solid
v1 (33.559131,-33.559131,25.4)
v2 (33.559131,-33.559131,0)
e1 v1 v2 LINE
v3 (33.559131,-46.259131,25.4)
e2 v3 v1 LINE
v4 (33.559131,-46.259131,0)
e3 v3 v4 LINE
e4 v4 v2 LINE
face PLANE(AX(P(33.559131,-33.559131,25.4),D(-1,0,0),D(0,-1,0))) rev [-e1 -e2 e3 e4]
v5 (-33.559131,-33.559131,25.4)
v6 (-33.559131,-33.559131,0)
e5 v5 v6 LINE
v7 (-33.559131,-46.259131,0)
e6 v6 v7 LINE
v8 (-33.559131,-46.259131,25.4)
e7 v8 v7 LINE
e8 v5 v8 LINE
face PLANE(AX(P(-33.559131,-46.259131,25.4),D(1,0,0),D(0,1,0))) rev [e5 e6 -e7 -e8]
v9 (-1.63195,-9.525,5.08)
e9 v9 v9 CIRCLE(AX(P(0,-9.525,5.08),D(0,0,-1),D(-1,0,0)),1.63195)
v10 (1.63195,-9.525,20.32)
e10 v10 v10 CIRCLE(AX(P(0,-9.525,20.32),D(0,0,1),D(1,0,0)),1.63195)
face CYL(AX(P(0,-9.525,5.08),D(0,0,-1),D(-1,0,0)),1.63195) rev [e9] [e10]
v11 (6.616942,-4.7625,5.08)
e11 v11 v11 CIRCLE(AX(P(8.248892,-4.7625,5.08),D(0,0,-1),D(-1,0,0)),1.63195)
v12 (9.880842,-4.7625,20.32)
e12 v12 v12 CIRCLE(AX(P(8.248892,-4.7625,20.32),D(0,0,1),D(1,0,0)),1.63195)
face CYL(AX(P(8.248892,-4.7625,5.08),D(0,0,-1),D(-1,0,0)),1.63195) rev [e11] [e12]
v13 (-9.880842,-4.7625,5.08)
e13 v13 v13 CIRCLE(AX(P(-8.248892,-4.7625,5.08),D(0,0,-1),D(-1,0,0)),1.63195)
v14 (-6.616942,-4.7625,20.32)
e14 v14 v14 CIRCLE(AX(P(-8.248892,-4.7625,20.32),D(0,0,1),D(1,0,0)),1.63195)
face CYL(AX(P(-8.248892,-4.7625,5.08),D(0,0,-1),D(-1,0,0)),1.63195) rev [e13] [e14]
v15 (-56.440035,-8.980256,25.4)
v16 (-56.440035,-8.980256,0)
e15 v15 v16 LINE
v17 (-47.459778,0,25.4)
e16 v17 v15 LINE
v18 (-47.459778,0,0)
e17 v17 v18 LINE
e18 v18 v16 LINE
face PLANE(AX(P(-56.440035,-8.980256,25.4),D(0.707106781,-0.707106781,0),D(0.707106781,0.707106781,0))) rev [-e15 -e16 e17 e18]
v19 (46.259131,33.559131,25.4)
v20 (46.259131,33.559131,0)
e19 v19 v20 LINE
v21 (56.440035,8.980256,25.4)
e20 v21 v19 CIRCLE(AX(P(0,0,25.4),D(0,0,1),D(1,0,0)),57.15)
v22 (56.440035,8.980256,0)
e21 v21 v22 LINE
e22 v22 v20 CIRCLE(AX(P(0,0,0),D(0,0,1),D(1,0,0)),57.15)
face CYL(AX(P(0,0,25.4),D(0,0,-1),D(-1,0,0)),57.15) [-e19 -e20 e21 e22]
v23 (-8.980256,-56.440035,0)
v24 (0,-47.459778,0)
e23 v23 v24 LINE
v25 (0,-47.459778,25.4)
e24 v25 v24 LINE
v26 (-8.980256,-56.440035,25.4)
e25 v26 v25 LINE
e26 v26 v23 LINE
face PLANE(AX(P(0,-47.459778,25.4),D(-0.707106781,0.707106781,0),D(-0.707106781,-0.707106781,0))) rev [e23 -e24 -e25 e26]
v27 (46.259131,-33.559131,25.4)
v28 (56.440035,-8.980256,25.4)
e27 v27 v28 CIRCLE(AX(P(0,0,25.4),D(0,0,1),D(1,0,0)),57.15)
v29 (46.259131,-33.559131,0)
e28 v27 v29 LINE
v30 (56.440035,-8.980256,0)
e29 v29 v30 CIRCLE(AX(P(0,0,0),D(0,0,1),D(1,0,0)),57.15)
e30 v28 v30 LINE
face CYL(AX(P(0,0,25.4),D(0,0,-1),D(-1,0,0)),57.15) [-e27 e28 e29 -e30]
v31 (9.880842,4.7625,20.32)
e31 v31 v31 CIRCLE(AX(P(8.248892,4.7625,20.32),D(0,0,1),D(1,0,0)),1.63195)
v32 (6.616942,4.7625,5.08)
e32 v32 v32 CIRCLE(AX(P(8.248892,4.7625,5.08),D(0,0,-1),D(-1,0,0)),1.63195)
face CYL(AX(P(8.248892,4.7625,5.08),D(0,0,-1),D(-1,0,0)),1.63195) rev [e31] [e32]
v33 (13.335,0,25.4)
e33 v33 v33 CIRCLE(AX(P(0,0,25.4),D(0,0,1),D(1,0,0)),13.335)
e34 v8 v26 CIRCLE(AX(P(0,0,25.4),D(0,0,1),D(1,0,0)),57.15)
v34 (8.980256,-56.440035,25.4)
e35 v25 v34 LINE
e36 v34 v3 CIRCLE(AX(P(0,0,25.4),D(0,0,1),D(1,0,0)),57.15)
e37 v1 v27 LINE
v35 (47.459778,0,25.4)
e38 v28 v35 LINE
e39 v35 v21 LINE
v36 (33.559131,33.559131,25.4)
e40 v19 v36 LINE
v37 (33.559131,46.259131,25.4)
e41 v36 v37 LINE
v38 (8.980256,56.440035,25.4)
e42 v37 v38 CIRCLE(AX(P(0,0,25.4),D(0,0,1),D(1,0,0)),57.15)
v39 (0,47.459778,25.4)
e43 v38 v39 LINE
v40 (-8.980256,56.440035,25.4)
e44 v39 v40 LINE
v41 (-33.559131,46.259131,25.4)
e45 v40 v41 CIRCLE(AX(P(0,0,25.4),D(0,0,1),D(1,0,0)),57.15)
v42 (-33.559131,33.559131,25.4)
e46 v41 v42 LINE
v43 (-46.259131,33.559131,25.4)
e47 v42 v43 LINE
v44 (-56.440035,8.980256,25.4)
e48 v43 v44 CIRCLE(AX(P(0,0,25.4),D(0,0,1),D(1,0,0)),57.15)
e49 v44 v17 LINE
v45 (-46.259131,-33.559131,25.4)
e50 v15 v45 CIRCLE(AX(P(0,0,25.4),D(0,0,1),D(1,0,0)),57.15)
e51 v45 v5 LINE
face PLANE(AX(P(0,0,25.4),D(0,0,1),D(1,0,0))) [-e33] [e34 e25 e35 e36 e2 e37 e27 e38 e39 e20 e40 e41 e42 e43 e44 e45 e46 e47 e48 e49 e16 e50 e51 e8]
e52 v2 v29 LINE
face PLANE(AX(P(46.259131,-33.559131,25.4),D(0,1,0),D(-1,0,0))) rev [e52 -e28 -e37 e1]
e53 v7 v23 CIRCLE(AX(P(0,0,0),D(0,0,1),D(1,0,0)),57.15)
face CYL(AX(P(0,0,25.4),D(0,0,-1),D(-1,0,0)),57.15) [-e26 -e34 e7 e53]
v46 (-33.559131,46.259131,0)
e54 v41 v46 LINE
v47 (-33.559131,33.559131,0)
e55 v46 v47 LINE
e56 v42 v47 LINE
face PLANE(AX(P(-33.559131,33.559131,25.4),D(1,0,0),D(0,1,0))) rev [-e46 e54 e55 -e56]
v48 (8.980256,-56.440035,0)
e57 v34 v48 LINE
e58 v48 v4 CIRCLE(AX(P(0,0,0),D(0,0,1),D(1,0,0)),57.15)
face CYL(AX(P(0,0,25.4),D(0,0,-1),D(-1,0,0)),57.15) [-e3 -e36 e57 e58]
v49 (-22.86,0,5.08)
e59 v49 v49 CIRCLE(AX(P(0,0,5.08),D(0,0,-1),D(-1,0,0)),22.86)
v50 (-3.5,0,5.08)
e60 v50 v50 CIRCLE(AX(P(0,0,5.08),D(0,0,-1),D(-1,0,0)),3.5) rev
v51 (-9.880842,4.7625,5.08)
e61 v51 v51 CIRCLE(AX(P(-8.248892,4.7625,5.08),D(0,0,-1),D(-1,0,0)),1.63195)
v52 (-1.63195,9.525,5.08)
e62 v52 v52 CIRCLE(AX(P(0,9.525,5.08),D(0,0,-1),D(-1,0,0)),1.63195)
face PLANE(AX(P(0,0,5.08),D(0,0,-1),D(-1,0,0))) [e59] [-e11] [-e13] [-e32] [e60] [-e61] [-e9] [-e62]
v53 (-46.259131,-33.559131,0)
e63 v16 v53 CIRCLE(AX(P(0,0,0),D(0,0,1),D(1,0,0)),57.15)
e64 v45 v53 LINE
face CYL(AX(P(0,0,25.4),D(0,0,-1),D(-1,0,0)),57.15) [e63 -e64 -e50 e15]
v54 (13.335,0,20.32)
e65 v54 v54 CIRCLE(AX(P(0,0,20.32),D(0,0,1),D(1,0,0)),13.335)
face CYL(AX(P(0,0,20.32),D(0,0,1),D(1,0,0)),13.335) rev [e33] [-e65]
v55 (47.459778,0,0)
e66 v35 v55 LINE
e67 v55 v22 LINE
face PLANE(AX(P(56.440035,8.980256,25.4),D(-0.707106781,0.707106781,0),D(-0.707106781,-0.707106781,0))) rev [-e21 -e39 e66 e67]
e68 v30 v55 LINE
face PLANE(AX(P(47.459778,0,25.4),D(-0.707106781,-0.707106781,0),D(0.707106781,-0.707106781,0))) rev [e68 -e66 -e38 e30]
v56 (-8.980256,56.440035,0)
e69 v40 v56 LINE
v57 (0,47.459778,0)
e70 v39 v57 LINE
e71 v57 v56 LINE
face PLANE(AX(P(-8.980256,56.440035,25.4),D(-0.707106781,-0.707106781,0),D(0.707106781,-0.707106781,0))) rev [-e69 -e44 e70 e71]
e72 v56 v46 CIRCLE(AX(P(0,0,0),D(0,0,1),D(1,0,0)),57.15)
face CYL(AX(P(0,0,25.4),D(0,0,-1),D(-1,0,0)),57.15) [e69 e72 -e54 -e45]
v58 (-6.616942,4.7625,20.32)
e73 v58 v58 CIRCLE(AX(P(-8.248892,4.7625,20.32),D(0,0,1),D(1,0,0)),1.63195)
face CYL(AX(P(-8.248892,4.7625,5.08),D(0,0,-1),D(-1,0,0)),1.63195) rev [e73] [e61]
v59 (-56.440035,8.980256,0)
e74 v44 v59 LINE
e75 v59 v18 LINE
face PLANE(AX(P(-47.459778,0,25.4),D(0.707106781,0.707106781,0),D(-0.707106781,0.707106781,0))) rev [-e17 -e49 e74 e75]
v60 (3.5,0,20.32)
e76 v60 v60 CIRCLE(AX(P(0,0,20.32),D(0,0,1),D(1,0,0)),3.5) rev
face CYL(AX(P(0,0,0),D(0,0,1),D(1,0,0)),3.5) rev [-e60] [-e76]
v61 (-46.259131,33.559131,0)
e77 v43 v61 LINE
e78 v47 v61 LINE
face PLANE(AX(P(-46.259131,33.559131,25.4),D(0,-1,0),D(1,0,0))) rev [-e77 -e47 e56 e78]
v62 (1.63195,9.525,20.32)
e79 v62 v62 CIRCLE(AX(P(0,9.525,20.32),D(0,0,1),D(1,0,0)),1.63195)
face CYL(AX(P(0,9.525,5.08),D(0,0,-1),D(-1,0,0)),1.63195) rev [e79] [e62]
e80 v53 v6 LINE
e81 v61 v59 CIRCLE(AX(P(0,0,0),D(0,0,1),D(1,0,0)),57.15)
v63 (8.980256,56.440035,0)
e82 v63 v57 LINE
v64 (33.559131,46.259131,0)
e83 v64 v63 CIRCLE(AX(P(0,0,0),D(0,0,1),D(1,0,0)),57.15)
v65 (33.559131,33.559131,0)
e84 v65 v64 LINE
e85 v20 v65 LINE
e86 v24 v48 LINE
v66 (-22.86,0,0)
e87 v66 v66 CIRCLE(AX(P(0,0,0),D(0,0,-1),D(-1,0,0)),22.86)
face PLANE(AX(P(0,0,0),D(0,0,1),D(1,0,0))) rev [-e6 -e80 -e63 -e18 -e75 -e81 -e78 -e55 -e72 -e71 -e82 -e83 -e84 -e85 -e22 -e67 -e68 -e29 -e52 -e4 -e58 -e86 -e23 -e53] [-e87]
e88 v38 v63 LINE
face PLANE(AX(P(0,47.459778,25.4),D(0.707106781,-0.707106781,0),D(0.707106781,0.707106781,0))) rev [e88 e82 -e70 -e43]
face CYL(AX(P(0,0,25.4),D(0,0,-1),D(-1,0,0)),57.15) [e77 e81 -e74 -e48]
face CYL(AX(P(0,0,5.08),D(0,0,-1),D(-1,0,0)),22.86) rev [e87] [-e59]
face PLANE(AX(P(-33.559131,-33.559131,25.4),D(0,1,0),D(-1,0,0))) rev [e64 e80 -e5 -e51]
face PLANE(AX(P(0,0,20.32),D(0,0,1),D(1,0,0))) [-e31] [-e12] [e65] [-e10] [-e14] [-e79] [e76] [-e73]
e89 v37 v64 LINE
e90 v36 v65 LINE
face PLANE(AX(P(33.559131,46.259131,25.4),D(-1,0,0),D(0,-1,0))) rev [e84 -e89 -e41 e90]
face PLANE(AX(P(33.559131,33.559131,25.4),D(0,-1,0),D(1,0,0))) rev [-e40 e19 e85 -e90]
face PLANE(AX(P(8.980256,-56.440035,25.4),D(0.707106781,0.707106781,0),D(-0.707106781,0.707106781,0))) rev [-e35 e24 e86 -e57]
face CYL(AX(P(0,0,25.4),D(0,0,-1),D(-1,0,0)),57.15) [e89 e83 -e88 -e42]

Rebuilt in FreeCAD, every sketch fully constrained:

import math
import FreeCAD as App
import Part
import Sketcher
Q = App.Units.Quantity

doc = App.newDocument("Part")
body = doc.addObject("PartDesign::Body", "Body")

sketch1 = doc.addObject("Sketcher::SketchObject", "Sketch")
body.addObject(sketch1)
sketch1.AttachmentSupport = (doc.XY_Plane, [""])
sketch1.MapMode = "FlatFace"
sketch1.addGeometry([
    Part.LineSegment(App.Vector(0, 47, 0), App.Vector(-9, 56, 0)),
    Part.ArcOfCircle(Part.Circle(App.Vector(0, 0, 0), App.Vector(0, 0, 1), 57), math.radians(99), math.radians(126)),
    Part.LineSegment(App.Vector(-34, 46, 0), App.Vector(-34, 34, 0)),
    Part.LineSegment(App.Vector(-34, 34, 0), App.Vector(-46, 34, 0)),
    Part.ArcOfCircle(Part.Circle(App.Vector(0, 0, 0), App.Vector(0, 0, 1), 57), math.radians(144), math.radians(171)),
    Part.LineSegment(App.Vector(-56, 9, 0), App.Vector(-47, 0, 0)),
    Part.LineSegment(App.Vector(-47, 0, 0), App.Vector(-56, -9, 0)),
    Part.ArcOfCircle(Part.Circle(App.Vector(0, 0, 0), App.Vector(0, 0, 1), 57), math.radians(-171), math.radians(-144)),
    Part.LineSegment(App.Vector(-46, -34, 0), App.Vector(-34, -34, 0)),
    Part.LineSegment(App.Vector(-34, -34, 0), App.Vector(-34, -46, 0)),
    Part.ArcOfCircle(Part.Circle(App.Vector(0, 0, 0), App.Vector(0, 0, 1), 57), math.radians(-126), math.radians(-99)),
    Part.LineSegment(App.Vector(-9, -56, 0), App.Vector(0, -47, 0)),
    Part.LineSegment(App.Vector(0, -47, 0), App.Vector(9, -56, 0)),
    Part.ArcOfCircle(Part.Circle(App.Vector(0, 0, 0), App.Vector(0, 0, 1), 57), math.radians(-81), math.radians(-54)),
    Part.LineSegment(App.Vector(34, -46, 0), App.Vector(34, -34, 0)),
    Part.LineSegment(App.Vector(34, -34, 0), App.Vector(46, -34, 0)),
    Part.ArcOfCircle(Part.Circle(App.Vector(0, 0, 0), App.Vector(0, 0, 1), 57), math.radians(-36), math.radians(-9)),
    Part.LineSegment(App.Vector(56, -9, 0), App.Vector(47, 0, 0)),
    Part.LineSegment(App.Vector(47, 0, 0), App.Vector(56, 9, 0)),
    Part.ArcOfCircle(Part.Circle(App.Vector(0, 0, 0), App.Vector(0, 0, 1), 57), math.radians(9), math.radians(36)),
    Part.LineSegment(App.Vector(46, 34, 0), App.Vector(34, 34, 0)),
    Part.LineSegment(App.Vector(34, 34, 0), App.Vector(34, 46, 0)),
    Part.ArcOfCircle(Part.Circle(App.Vector(0, 0, 0), App.Vector(0, 0, 1), 57), math.radians(54), math.radians(81)),
    Part.LineSegment(App.Vector(9, 56, 0), App.Vector(0, 47, 0)),
], False)
sketch1.addConstraint([
    Sketcher.Constraint("Coincident", 0, 2, 1, 1),
    Sketcher.Constraint("Coincident", 1, 2, 2, 1),
    Sketcher.Constraint("Coincident", 2, 2, 3, 1),
    Sketcher.Constraint("Coincident", 3, 2, 4, 1),
    Sketcher.Constraint("Coincident", 4, 2, 5, 1),
    Sketcher.Constraint("Coincident", 5, 2, 6, 1),
    Sketcher.Constraint("Coincident", 6, 2, 7, 1),
    Sketcher.Constraint("Coincident", 7, 2, 8, 1),
    Sketcher.Constraint("Coincident", 8, 2, 9, 1),
    Sketcher.Constraint("Coincident", 9, 2, 10, 1),
    Sketcher.Constraint("Coincident", 10, 2, 11, 1),
    Sketcher.Constraint("Coincident", 11, 2, 12, 1),
    Sketcher.Constraint("Coincident", 12, 2, 13, 1),
    Sketcher.Constraint("Coincident", 13, 2, 14, 1),
    Sketcher.Constraint("Coincident", 14, 2, 15, 1),
    Sketcher.Constraint("Coincident", 15, 2, 16, 1),
    Sketcher.Constraint("Coincident", 16, 2, 17, 1),
    Sketcher.Constraint("Coincident", 17, 2, 18, 1),
    Sketcher.Constraint("Coincident", 18, 2, 19, 1),
    Sketcher.Constraint("Coincident", 19, 2, 20, 1),
    Sketcher.Constraint("Coincident", 20, 2, 21, 1),
    Sketcher.Constraint("Coincident", 21, 2, 22, 1),
    Sketcher.Constraint("Coincident", 22, 2, 23, 1),
    Sketcher.Constraint("Coincident", 23, 2, 0, 1),
    Sketcher.Constraint("Vertical", 2),
    Sketcher.Constraint("Horizontal", 3),
    Sketcher.Constraint("Horizontal", 8),
    Sketcher.Constraint("Vertical", 9),
    Sketcher.Constraint("Vertical", 14),
    Sketcher.Constraint("Horizontal", 15),
    Sketcher.Constraint("Horizontal", 20),
    Sketcher.Constraint("Vertical", 21),
    Sketcher.Constraint("Coincident", 1, 3, -1, 1),
    Sketcher.Constraint("Coincident", 4, 3, -1, 1),
    Sketcher.Constraint("Coincident", 7, 3, -1, 1),
    Sketcher.Constraint("Coincident", 10, 3, -1, 1),
    Sketcher.Constraint("Coincident", 13, 3, -1, 1),
    Sketcher.Constraint("Coincident", 16, 3, -1, 1),
    Sketcher.Constraint("Coincident", 19, 3, -1, 1),
    Sketcher.Constraint("Coincident", 22, 3, -1, 1),
    Sketcher.Constraint("Equal", 1, 4),
    Sketcher.Constraint("Equal", 4, 7),
    Sketcher.Constraint("Equal", 7, 10),
    Sketcher.Constraint("Equal", 10, 13),
    Sketcher.Constraint("Equal", 13, 16),
    Sketcher.Constraint("Equal", 16, 19),
    Sketcher.Constraint("Equal", 19, 22),
    Sketcher.Constraint("Symmetric", 2, 2, 14, 2, -1, 1),
    Sketcher.Constraint("Symmetric", 5, 2, 17, 2, -1, 1),
    Sketcher.Constraint("Symmetric", 8, 2, 20, 2, -1, 1),
    Sketcher.Constraint("Symmetric", 11, 2, 23, 2, -1, 1),
    Sketcher.Constraint("Symmetric", 8, 2, 14, 2, -2),
    Sketcher.Constraint("PointOnObject", 5, 2, -1),
    Sketcher.Constraint("PointOnObject", 11, 2, -2),
    Sketcher.Constraint("Parallel", 0, 5),
    Sketcher.Constraint("Perpendicular", 5, 6),
    Sketcher.Constraint("Parallel", 6, 11),
    Sketcher.Constraint("Perpendicular", 11, 12),
    Sketcher.Constraint("Parallel", 12, 17),
    Sketcher.Constraint("Perpendicular", 17, 18),
    Sketcher.Constraint("Parallel", 18, 23),
    Sketcher.Constraint("Horizontal", 10, 2, 12, 2),
    Sketcher.Constraint("Equal", 20, 2),
    Sketcher.Constraint("Equal", 0, 5),
    Sketcher.Constraint("Radius", 1, Q("2.25 in")),
    Sketcher.Constraint("DistanceX", 3, 2, 3, 1, Q("0.5 in")),
    Sketcher.Constraint("Distance", 0, Q("0.5 in")),
])
pad1 = doc.addObject("PartDesign::Pad", "Pad")
body.addObject(pad1)
pad1.Profile = sketch1
pad1.Length = Q("1 in")

sketch2 = doc.addObject("Sketcher::SketchObject", "Sketch001")
body.addObject(sketch2)
sketch2.AttachmentSupport = (doc.XY_Plane, [""])
sketch2.MapMode = "FlatFace"
sketch2.AttachmentOffset = App.Placement(App.Vector(0, 0, 1 * 25.4), App.Rotation())
sketch2.addGeometry(Part.Circle(App.Vector(0, 0, 0), App.Vector(0, 0, 1), 3.5), False)
sketch2.addConstraint([
    Sketcher.Constraint("Coincident", 0, 3, -1, 1),
    Sketcher.Constraint("Diameter", 0, Q("7 mm")),
])
pocket1 = doc.addObject("PartDesign::Pocket", "Pocket")
body.addObject(pocket1)
pocket1.Profile = sketch2
pocket1.Type = "ThroughAll"

sketch3 = doc.addObject("Sketcher::SketchObject", "Sketch002")
body.addObject(sketch3)
sketch3.AttachmentSupport = (doc.XY_Plane, [""])
sketch3.MapMode = "FlatFace"
sketch3.AttachmentOffset = App.Placement(App.Vector(0, 0, 1 * 25.4), App.Rotation())
sketch3.addGeometry(Part.Circle(App.Vector(0, 0, 0), App.Vector(0, 0, 1), 13), False)
sketch3.addConstraint([
    Sketcher.Constraint("Coincident", 0, 3, -1, 1),
    Sketcher.Constraint("Diameter", 0, Q("1.05 in")),
])
pocket2 = doc.addObject("PartDesign::Pocket", "Pocket001")
body.addObject(pocket2)
pocket2.Profile = sketch3
pocket2.Length = Q("0.2 in")

sketch4 = doc.addObject("Sketcher::SketchObject", "Sketch003")
body.addObject(sketch4)
sketch4.AttachmentSupport = (doc.XY_Plane, [""])
sketch4.MapMode = "FlatFace"
sketch4.addGeometry(Part.Circle(App.Vector(0, 0, 0), App.Vector(0, 0, 1), 23), False)
sketch4.addConstraint([
    Sketcher.Constraint("Coincident", 0, 3, -1, 1),
    Sketcher.Constraint("Diameter", 0, Q("1.8 in")),
])
pocket3 = doc.addObject("PartDesign::Pocket", "Pocket002")
body.addObject(pocket3)
pocket3.Profile = sketch4
pocket3.Length = Q("0.2 in")
pocket3.Reversed = True

sketch5 = doc.addObject("Sketcher::SketchObject", "Sketch004")
body.addObject(sketch5)
sketch5.AttachmentSupport = (doc.XY_Plane, [""])
sketch5.MapMode = "FlatFace"
sketch5.AttachmentOffset = App.Placement(App.Vector(0, 0, 0.2 * 25.4), App.Rotation())
sketch5.addGeometry([
    Part.Circle(App.Vector(0, 9.5, 0), App.Vector(0, 0, 1), 1.6),
    Part.Circle(App.Vector(-8.2, 4.8, 0), App.Vector(0, 0, 1), 1.6),
    Part.Circle(App.Vector(-8.2, -4.8, 0), App.Vector(0, 0, 1), 1.6),
    Part.Circle(App.Vector(0, -9.5, 0), App.Vector(0, 0, 1), 1.6),
    Part.Circle(App.Vector(8.2, 4.8, 0), App.Vector(0, 0, 1), 1.6),
    Part.Circle(App.Vector(8.2, -4.8, 0), App.Vector(0, 0, 1), 1.6),
], False)
sketch5.addConstraint([
    Sketcher.Constraint("Equal", 0, 1),
    Sketcher.Constraint("Equal", 1, 2),
    Sketcher.Constraint("Equal", 2, 3),
    Sketcher.Constraint("Equal", 3, 4),
    Sketcher.Constraint("Equal", 4, 5),
    Sketcher.Constraint("Symmetric", 0, 3, 3, 3, -1, 1),
    Sketcher.Constraint("Symmetric", 2, 3, 4, 3, -1, 1),
    Sketcher.Constraint("Symmetric", 1, 3, 5, 3, -1, 1),
    Sketcher.Constraint("Symmetric", 1, 3, 4, 3, -2),
    Sketcher.Constraint("PointOnObject", 0, 3, -2),
    Sketcher.Constraint("Diameter", 0, Q("0.1285 in")),
    Sketcher.Constraint("DistanceY", 3, 3, 0, 3, Q("0.75 in")),
    Sketcher.Constraint("DistanceY", -1, 1, 1, 3, Q("0.1875 in")),
    Sketcher.Constraint("DistanceX", 1, 3, -1, 1, Q("8.248892 mm")),
])
doc.recompute()
hole = doc.addObject("PartDesign::Hole", "Hole")
body.addObject(hole)
hole.Profile = sketch5
hole.ThreadType = "None"
hole.Diameter = Q("0.1285 in")
hole.DepthType = "ThroughAll"
hole.Reversed = True

doc.recompute()
